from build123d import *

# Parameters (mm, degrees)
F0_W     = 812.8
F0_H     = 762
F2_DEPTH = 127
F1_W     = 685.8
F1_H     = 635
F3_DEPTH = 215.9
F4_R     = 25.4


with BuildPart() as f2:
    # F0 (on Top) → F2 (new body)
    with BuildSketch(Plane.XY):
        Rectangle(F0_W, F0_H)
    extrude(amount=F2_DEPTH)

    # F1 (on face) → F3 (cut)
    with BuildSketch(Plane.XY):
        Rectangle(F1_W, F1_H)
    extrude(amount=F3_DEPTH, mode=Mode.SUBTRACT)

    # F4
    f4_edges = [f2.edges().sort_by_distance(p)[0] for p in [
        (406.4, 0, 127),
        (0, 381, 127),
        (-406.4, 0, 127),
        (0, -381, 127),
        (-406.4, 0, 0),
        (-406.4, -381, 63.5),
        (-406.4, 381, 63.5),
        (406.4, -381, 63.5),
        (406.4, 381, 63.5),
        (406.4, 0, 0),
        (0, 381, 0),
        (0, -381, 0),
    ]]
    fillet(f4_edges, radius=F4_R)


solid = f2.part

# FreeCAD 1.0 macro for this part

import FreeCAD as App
import Part
import Sketcher

V = App.Vector
Q = App.Units.Quantity


def edges_at(feature, points):
    """Names of the edges that pass closest to the given points."""
    edges = feature.Shape.Edges
    near = lambda p: min(range(len(edges)), key=lambda i: edges[i].distToShape(Part.Vertex(*p))[0])
    return sorted({f"Edge{near(p) + 1}" for p in points})


def add_polygon(sketch, points):
    """Adds a closed chain of lines whose ends are joined by coincident constraints."""
    first, n = sketch.GeometryCount, len(points)
    for a, b in zip(points, points[1:] + points[:1]):
        sketch.addGeometry(Part.LineSegment(App.Vector(*a, 0), App.Vector(*b, 0)), False)
    for i in range(n):
        sketch.addConstraint(Sketcher.Constraint("Coincident", first + i, 2, first + (i + 1) % n, 1))

doc = App.newDocument("Part")
body = doc.addObject("PartDesign::Body", "Body")

sketch1 = doc.addObject("Sketcher::SketchObject", "Sketch")
body.addObject(sketch1)
sketch1.AttachmentSupport = (doc.XY_Plane, [""])
sketch1.MapMode = "FlatFace"
add_polygon(sketch1, [(-406, 381), (-406, -381), (406, -381), (406, 381)])
sketch1.addConstraint([
    Sketcher.Constraint("Vertical", 0),
    Sketcher.Constraint("Horizontal", 1),
    Sketcher.Constraint("Vertical", 2),
    Sketcher.Constraint("Horizontal", 3),
    Sketcher.Constraint("Symmetric", 0, 2, 2, 2, -1, 1),
    Sketcher.Constraint("DistanceX", 1, 1, 1, 2, Q("32 in")),
    Sketcher.Constraint("DistanceY", 0, 2, 0, 1, Q("30 in")),
])
pad1 = doc.addObject("PartDesign::Pad", "Pad")
body.addObject(pad1)
pad1.Profile = sketch1
pad1.Length = Q("5 in")

sketch2 = doc.addObject("Sketcher::SketchObject", "Sketch001")
body.addObject(sketch2)
sketch2.AttachmentSupport = (doc.XY_Plane, [""])
sketch2.MapMode = "FlatFace"
add_polygon(sketch2, [(-343, 318), (-343, -318), (343, -318), (343, 318)])
sketch2.addConstraint([
    Sketcher.Constraint("Vertical", 0),
    Sketcher.Constraint("Horizontal", 1),
    Sketcher.Constraint("Vertical", 2),
    Sketcher.Constraint("Horizontal", 3),
    Sketcher.Constraint("Symmetric", 0, 2, 2, 2, -1, 1),
    Sketcher.Constraint("DistanceX", 1, 1, 1, 2, Q("27 in")),
    Sketcher.Constraint("DistanceY", 0, 2, 0, 1, Q("25 in")),
])
pocket1 = doc.addObject("PartDesign::Pocket", "Pocket")
body.addObject(pocket1)
pocket1.Profile = sketch2
pocket1.Length = Q("8.5 in")
pocket1.Reversed = True
doc.recompute()

fillet = doc.addObject("PartDesign::Fillet", "Fillet")
body.addObject(fillet)
fillet.Base = (pocket1, edges_at(pocket1, [
    (406.4, 0, 127),
    (0, 381, 127),
    (-406.4, 0, 127),
    (0, -381, 127),
    (-406.4, 0, 0),
    (-406.4, -381, 63.5),
    (-406.4, 381, 63.5),
    (406.4, -381, 63.5),
    (406.4, 381, 63.5),
    (406.4, 0, 0),
    (0, 381, 0),
    (0, -381, 0),
]))
fillet.Radius = Q("1 in")

doc.recompute()
